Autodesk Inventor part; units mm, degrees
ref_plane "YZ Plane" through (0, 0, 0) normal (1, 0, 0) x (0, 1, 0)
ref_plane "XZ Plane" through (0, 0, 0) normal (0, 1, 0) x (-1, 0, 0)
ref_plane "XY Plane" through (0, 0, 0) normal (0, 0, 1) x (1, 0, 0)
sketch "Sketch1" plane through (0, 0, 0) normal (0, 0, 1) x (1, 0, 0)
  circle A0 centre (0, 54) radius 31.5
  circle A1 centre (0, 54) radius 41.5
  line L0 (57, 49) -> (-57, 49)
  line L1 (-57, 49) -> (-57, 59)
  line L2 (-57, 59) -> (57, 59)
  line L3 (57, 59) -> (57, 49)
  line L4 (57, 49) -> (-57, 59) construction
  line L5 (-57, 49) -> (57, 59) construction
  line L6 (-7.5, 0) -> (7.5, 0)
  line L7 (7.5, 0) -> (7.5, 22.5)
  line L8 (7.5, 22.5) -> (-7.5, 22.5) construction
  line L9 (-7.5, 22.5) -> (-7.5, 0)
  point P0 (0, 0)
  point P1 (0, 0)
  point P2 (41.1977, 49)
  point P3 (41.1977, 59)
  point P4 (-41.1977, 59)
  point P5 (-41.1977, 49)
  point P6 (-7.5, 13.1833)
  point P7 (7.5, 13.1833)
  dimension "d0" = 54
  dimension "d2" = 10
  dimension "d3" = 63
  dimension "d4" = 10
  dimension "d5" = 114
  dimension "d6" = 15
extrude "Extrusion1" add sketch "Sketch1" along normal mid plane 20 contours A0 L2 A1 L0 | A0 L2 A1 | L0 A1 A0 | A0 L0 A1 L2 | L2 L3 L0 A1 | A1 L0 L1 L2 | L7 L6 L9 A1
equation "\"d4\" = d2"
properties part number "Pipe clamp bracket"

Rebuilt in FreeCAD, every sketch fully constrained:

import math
import FreeCAD as App
import Part
import Sketcher
Q = App.Units.Quantity

doc = App.newDocument("Part")
body = doc.addObject("PartDesign::Body", "Body")

sketch1 = doc.addObject("Sketcher::SketchObject", "Sketch")
body.addObject(sketch1)
sketch1.AttachmentSupport = (doc.XY_Plane, [""])
sketch1.MapMode = "FlatFace"
sketch1.addGeometry([
    Part.ArcOfCircle(Part.Circle(App.Vector(0, 54, 0), App.Vector(0, 0, 1), 41.5), math.radians(6.919917), math.radians(173.080083)),
    Part.LineSegment(App.Vector(-41.197694, 59, 0), App.Vector(-57, 59, 0)),
    Part.LineSegment(App.Vector(-57, 59, 0), App.Vector(-57, 49, 0)),
    Part.LineSegment(App.Vector(-57, 49, 0), App.Vector(-41.197694, 49, 0)),
    Part.ArcOfCircle(Part.Circle(App.Vector(0, 54, 0), App.Vector(0, 0, 1), 41.5), math.radians(-173.080083), math.radians(-100.411869)),
    Part.LineSegment(App.Vector(-7.5, 13.183337, 0), App.Vector(-7.5, 0, 0)),
    Part.LineSegment(App.Vector(-7.5, 0, 0), App.Vector(7.5, 0, 0)),
    Part.LineSegment(App.Vector(7.5, 0, 0), App.Vector(7.5, 13.183337, 0)),
    Part.ArcOfCircle(Part.Circle(App.Vector(0, 54, 0), App.Vector(0, 0, 1), 41.5), math.radians(-79.588131), math.radians(-6.919917)),
    Part.LineSegment(App.Vector(41.197694, 49, 0), App.Vector(57, 49, 0)),
    Part.LineSegment(App.Vector(57, 49, 0), App.Vector(57, 59, 0)),
    Part.LineSegment(App.Vector(57, 59, 0), App.Vector(41.197694, 59, 0)),
    Part.Circle(App.Vector(0, 54, 0), App.Vector(0, 0, 1), 31.5),
], False)
sketch1.addConstraint([
    Sketcher.Constraint("Coincident", 0, 2, 1, 1),
    Sketcher.Constraint("Coincident", 1, 2, 2, 1),
    Sketcher.Constraint("Coincident", 2, 2, 3, 1),
    Sketcher.Constraint("Coincident", 3, 2, 4, 1),
    Sketcher.Constraint("Coincident", 4, 2, 5, 1),
    Sketcher.Constraint("Coincident", 5, 2, 6, 1),
    Sketcher.Constraint("Coincident", 6, 2, 7, 1),
    Sketcher.Constraint("Coincident", 7, 2, 8, 1),
    Sketcher.Constraint("Coincident", 8, 2, 9, 1),
    Sketcher.Constraint("Coincident", 9, 2, 10, 1),
    Sketcher.Constraint("Coincident", 10, 2, 11, 1),
    Sketcher.Constraint("Coincident", 11, 2, 0, 1),
    Sketcher.Constraint("Horizontal", 1),
    Sketcher.Constraint("Vertical", 2),
    Sketcher.Constraint("Horizontal", 3),
    Sketcher.Constraint("Vertical", 5),
    Sketcher.Constraint("Horizontal", 6),
    Sketcher.Constraint("Vertical", 7),
    Sketcher.Constraint("Horizontal", 9),
    Sketcher.Constraint("Vertical", 10),
    Sketcher.Constraint("Horizontal", 11),
    Sketcher.Constraint("Coincident", 4, 3, 0, 3),
    Sketcher.Constraint("Coincident", 8, 3, 0, 3),
    Sketcher.Constraint("Coincident", 12, 3, 0, 3),
    Sketcher.Constraint("Equal", 0, 4),
    Sketcher.Constraint("Equal", 4, 8),
    Sketcher.Constraint("Symmetric", 5, 2, 6, 2, -1, 1),
    Sketcher.Constraint("Symmetric", 3, 2, 8, 2, -2),
    Sketcher.Constraint("Symmetric", 1, 2, 10, 2, -2),
    Sketcher.Constraint("Vertical", 0, 2, 3, 2),
    Sketcher.Constraint("Diameter", 12, Q("63 mm")),
    Sketcher.Constraint("DistanceX", 6, 1, 6, 2, Q("15 mm")),
    Sketcher.Constraint("DistanceY", 2, 2, 2, 1, Q("10 mm")),
    Sketcher.Constraint("DistanceY", -1, 1, 0, 3, Q("54 mm")),
    Sketcher.Constraint("Radius", 0, Q("41.5 mm")),
    Sketcher.Constraint("DistanceX", 1, 2, -1, 1, Q("57 mm")),
])
pad1 = doc.addObject("PartDesign::Pad", "Pad")
body.addObject(pad1)
pad1.Profile = sketch1
pad1.Length = 20
pad1.Midplane = True

doc.recompute()
